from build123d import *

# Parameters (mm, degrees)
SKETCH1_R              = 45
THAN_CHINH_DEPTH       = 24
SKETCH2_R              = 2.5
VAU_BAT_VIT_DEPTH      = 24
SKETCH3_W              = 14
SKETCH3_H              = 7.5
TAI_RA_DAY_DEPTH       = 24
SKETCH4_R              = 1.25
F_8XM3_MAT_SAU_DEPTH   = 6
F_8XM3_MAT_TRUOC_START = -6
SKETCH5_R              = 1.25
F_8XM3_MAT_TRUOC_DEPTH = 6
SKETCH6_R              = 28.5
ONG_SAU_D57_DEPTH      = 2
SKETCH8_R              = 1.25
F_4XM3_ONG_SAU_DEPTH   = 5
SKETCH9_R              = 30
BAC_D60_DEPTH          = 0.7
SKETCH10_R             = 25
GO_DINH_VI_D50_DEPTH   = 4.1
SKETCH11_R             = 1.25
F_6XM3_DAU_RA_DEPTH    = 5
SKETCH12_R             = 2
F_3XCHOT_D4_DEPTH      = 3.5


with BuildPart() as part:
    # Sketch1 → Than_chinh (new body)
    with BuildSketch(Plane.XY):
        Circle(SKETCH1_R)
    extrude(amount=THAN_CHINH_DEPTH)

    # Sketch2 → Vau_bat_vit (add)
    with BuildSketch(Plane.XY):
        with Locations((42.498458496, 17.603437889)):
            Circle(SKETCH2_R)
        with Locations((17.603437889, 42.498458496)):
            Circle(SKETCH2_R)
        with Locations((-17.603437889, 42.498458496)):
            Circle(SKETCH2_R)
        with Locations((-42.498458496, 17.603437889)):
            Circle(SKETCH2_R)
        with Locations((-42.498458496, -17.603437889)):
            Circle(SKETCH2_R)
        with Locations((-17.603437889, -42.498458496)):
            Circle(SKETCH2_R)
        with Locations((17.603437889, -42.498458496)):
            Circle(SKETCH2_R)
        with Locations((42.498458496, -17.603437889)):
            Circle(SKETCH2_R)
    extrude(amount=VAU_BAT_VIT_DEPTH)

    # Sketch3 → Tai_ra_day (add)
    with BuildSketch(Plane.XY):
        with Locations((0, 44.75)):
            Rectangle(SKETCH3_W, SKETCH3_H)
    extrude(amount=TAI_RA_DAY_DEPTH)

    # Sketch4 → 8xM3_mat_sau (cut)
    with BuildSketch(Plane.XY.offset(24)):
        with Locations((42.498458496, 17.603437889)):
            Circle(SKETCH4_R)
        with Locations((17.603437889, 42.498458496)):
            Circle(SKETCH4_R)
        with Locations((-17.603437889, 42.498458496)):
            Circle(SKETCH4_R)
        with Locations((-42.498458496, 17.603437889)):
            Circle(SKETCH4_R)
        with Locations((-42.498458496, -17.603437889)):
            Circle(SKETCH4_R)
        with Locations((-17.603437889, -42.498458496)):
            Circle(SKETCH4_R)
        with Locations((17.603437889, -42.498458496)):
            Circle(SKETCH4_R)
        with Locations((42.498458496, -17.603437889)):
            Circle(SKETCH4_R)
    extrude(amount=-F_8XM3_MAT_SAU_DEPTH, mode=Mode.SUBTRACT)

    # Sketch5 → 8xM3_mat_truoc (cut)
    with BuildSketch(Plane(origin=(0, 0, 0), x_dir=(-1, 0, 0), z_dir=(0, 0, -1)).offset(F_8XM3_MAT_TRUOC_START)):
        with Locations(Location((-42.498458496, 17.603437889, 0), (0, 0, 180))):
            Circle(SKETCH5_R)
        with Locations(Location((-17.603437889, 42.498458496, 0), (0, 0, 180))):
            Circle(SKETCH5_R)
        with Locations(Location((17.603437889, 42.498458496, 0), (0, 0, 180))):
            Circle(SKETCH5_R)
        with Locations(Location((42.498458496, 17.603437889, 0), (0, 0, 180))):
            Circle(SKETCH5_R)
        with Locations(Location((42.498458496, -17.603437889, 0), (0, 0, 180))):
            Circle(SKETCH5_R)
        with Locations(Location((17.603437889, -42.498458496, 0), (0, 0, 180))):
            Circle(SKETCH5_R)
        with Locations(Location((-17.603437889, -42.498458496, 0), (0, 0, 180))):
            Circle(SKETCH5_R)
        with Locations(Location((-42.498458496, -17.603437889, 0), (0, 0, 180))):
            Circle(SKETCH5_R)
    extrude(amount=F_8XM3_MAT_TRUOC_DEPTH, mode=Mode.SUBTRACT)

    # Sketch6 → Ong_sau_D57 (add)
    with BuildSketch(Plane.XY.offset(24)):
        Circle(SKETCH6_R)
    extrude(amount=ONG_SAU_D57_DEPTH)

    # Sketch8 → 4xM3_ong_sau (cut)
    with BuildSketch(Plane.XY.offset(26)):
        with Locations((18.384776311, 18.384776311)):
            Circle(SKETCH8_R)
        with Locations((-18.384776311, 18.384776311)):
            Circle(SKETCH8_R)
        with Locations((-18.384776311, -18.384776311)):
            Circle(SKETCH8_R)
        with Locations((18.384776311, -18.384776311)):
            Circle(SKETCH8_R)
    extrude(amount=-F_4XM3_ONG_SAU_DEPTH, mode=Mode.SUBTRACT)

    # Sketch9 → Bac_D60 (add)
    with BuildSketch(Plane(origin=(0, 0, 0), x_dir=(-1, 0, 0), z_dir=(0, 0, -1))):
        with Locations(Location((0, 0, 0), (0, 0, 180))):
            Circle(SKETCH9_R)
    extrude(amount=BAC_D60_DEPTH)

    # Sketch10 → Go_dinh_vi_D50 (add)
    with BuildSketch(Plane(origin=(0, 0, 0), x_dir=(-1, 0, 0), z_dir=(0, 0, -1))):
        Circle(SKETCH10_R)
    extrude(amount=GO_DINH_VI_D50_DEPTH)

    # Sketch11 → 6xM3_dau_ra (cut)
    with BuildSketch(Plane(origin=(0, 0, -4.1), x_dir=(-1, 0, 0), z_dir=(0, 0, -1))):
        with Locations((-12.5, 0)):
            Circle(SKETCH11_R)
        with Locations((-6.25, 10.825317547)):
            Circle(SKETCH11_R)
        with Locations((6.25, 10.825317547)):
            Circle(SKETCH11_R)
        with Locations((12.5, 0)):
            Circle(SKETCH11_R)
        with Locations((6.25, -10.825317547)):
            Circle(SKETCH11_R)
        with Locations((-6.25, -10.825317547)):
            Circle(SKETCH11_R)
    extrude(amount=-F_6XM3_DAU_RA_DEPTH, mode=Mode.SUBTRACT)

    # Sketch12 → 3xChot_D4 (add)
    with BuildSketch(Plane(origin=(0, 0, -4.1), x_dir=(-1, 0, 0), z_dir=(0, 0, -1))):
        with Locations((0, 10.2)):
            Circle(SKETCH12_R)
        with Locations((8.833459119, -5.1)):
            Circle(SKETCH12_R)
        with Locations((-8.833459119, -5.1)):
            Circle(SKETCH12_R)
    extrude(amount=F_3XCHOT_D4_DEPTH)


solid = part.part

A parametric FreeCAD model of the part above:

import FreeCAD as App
import Part
import Sketcher
from FreeCAD import Vector


def add_polygon(sketch, points):
    """Adds a closed chain of lines whose ends are joined by coincident constraints."""
    first, n = sketch.GeometryCount, len(points)
    for a, b in zip(points, points[1:] + points[:1]):
        sketch.addGeometry(Part.LineSegment(App.Vector(*a, 0), App.Vector(*b, 0)), False)
    for i in range(n):
        sketch.addConstraint(Sketcher.Constraint("Coincident", first + i, 2, first + (i + 1) % n, 1))

doc = App.newDocument("Part")
body = doc.addObject("PartDesign::Body", "Body")

# Sketch on XY plane
sketch1 = doc.addObject("Sketcher::SketchObject", "Sketch")
body.addObject(sketch1)
sketch1.AttachmentSupport = (doc.XY_Plane, [""])
sketch1.MapMode = "FlatFace"
sketch1.addGeometry(Part.Circle(Vector(0, 0, 0), Vector(0, 0, 1), 45), False)
sketch1.addConstraint(Sketcher.Constraint("Coincident", 0, 3, -1, 1))
sketch1.addConstraint(Sketcher.Constraint("Diameter", 0, 90.0))
pad1 = doc.addObject("PartDesign::Pad", "Pad")
body.addObject(pad1)
pad1.Profile = sketch1
pad1.Length = 24

# Sketch on XY plane
sketch2 = doc.addObject("Sketcher::SketchObject", "Sketch001")
body.addObject(sketch2)
sketch2.AttachmentSupport = (doc.XY_Plane, [""])
sketch2.MapMode = "FlatFace"
sketch2.addGeometry(Part.Circle(Vector(42.5, 17.6, 0), Vector(0, 0, 1), 2.5), False)
sketch2.addGeometry(Part.Circle(Vector(17.6, 42.5, 0), Vector(0, 0, 1), 2.5), False)
sketch2.addGeometry(Part.Circle(Vector(-17.6, 42.5, 0), Vector(0, 0, 1), 2.5), False)
sketch2.addGeometry(Part.Circle(Vector(-42.5, 17.6, 0), Vector(0, 0, 1), 2.5), False)
sketch2.addGeometry(Part.Circle(Vector(-42.5, -17.6, 0), Vector(0, 0, 1), 2.5), False)
sketch2.addGeometry(Part.Circle(Vector(-17.6, -42.5, 0), Vector(0, 0, 1), 2.5), False)
sketch2.addGeometry(Part.Circle(Vector(17.6, -42.5, 0), Vector(0, 0, 1), 2.5), False)
sketch2.addGeometry(Part.Circle(Vector(42.5, -17.6, 0), Vector(0, 0, 1), 2.5), False)
sketch2.addConstraint(Sketcher.Constraint("Equal", 0, 1))
sketch2.addConstraint(Sketcher.Constraint("Equal", 1, 2))
sketch2.addConstraint(Sketcher.Constraint("Equal", 2, 3))
sketch2.addConstraint(Sketcher.Constraint("Equal", 3, 4))
sketch2.addConstraint(Sketcher.Constraint("Equal", 4, 5))
sketch2.addConstraint(Sketcher.Constraint("Equal", 5, 6))
sketch2.addConstraint(Sketcher.Constraint("Equal", 6, 7))
sketch2.addConstraint(Sketcher.Constraint("Symmetric", 0, 3, 4, 3, -1, 1))
sketch2.addConstraint(Sketcher.Constraint("Symmetric", 1, 3, 5, 3, -1, 1))
sketch2.addConstraint(Sketcher.Constraint("Symmetric", 2, 3, 6, 3, -1, 1))
sketch2.addConstraint(Sketcher.Constraint("Symmetric", 3, 3, 7, 3, -1, 1))
sketch2.addConstraint(Sketcher.Constraint("Symmetric", 1, 3, 2, 3, -2))
sketch2.addConstraint(Sketcher.Constraint("Symmetric", 0, 3, 3, 3, -2))
sketch2.addConstraint(Sketcher.Constraint("Diameter", 0, 5.0))
sketch2.addConstraint(Sketcher.Constraint("DistanceX", -1, 1, 0, 3, 42.498458))
sketch2.addConstraint(Sketcher.Constraint("DistanceY", -1, 1, 1, 3, 42.498458))
sketch2.addConstraint(Sketcher.Constraint("DistanceX", 1, 3, 0, 3, 24.895021))
sketch2.addConstraint(Sketcher.Constraint("DistanceY", 0, 3, 1, 3, 24.895021))
pad2 = doc.addObject("PartDesign::Pad", "Pad001")
body.addObject(pad2)
pad2.Profile = sketch2
pad2.Length = 24

# Sketch on XY plane
sketch3 = doc.addObject("Sketcher::SketchObject", "Sketch002")
body.addObject(sketch3)
sketch3.AttachmentSupport = (doc.XY_Plane, [""])
sketch3.MapMode = "FlatFace"
add_polygon(sketch3, [(-7, 48), (-7, 41), (7, 41), (7, 48)])  # lines 0-3
sketch3.addConstraint(Sketcher.Constraint("Vertical", 0))
sketch3.addConstraint(Sketcher.Constraint("Horizontal", 1))
sketch3.addConstraint(Sketcher.Constraint("Vertical", 2))
sketch3.addConstraint(Sketcher.Constraint("Horizontal", 3))
sketch3.addConstraint(Sketcher.Constraint("DistanceX", 1, 1, 1, 2, 14.0))
sketch3.addConstraint(Sketcher.Constraint("DistanceY", 0, 2, 0, 1, 7.5))
sketch3.addConstraint(Sketcher.Constraint("DistanceX", 0, 2, -1, 1, 7.0))
sketch3.addConstraint(Sketcher.Constraint("DistanceY", -1, 1, 0, 2, 41.0))
pad3 = doc.addObject("PartDesign::Pad", "Pad002")
body.addObject(pad3)
pad3.Profile = sketch3
pad3.Length = 24

# Sketch on XY plane
sketch4 = doc.addObject("Sketcher::SketchObject", "Sketch003")
body.addObject(sketch4)
sketch4.AttachmentSupport = (doc.XY_Plane, [""])
sketch4.MapMode = "FlatFace"
sketch4.AttachmentOffset = App.Placement(Vector(0, 0, 24), App.Rotation())
sketch4.addGeometry(Part.Circle(Vector(42.5, 17.6, 0), Vector(0, 0, 1), 1.2), False)
sketch4.addGeometry(Part.Circle(Vector(17.6, 42.5, 0), Vector(0, 0, 1), 1.2), False)
sketch4.addGeometry(Part.Circle(Vector(-17.6, 42.5, 0), Vector(0, 0, 1), 1.2), False)
sketch4.addGeometry(Part.Circle(Vector(-42.5, 17.6, 0), Vector(0, 0, 1), 1.2), False)
sketch4.addGeometry(Part.Circle(Vector(-42.5, -17.6, 0), Vector(0, 0, 1), 1.2), False)
sketch4.addGeometry(Part.Circle(Vector(-17.6, -42.5, 0), Vector(0, 0, 1), 1.2), False)
sketch4.addGeometry(Part.Circle(Vector(17.6, -42.5, 0), Vector(0, 0, 1), 1.2), False)
sketch4.addGeometry(Part.Circle(Vector(42.5, -17.6, 0), Vector(0, 0, 1), 1.2), False)
sketch4.addConstraint(Sketcher.Constraint("Equal", 0, 1))
sketch4.addConstraint(Sketcher.Constraint("Equal", 1, 2))
sketch4.addConstraint(Sketcher.Constraint("Equal", 2, 3))
sketch4.addConstraint(Sketcher.Constraint("Equal", 3, 4))
sketch4.addConstraint(Sketcher.Constraint("Equal", 4, 5))
sketch4.addConstraint(Sketcher.Constraint("Equal", 5, 6))
sketch4.addConstraint(Sketcher.Constraint("Equal", 6, 7))
sketch4.addConstraint(Sketcher.Constraint("Symmetric", 0, 3, 4, 3, -1, 1))
sketch4.addConstraint(Sketcher.Constraint("Symmetric", 1, 3, 5, 3, -1, 1))
sketch4.addConstraint(Sketcher.Constraint("Symmetric", 2, 3, 6, 3, -1, 1))
sketch4.addConstraint(Sketcher.Constraint("Symmetric", 3, 3, 7, 3, -1, 1))
sketch4.addConstraint(Sketcher.Constraint("Symmetric", 1, 3, 2, 3, -2))
sketch4.addConstraint(Sketcher.Constraint("Symmetric", 0, 3, 3, 3, -2))
sketch4.addConstraint(Sketcher.Constraint("Diameter", 0, 2.5))
sketch4.addConstraint(Sketcher.Constraint("DistanceX", -1, 1, 0, 3, 42.498458))
sketch4.addConstraint(Sketcher.Constraint("DistanceY", -1, 1, 1, 3, 42.498458))
sketch4.addConstraint(Sketcher.Constraint("DistanceX", 1, 3, 0, 3, 24.895021))
sketch4.addConstraint(Sketcher.Constraint("DistanceY", 0, 3, 1, 3, 24.895021))
pocket1 = doc.addObject("PartDesign::Pocket", "Pocket")
body.addObject(pocket1)
pocket1.Profile = sketch4
pocket1.Length = 6

# Sketch on XY plane
sketch5 = doc.addObject("Sketcher::SketchObject", "Sketch004")
body.addObject(sketch5)
sketch5.AttachmentSupport = (doc.XY_Plane, [""])
sketch5.MapMode = "FlatFace"
sketch5.AttachmentOffset = App.Placement(Vector(0, 0, 6), App.Rotation())
sketch5.addGeometry(Part.Circle(Vector(42.5, 17.6, 0), Vector(0, 0, 1), 1.2), False)
sketch5.addGeometry(Part.Circle(Vector(17.6, 42.5, 0), Vector(0, 0, 1), 1.2), False)
sketch5.addGeometry(Part.Circle(Vector(-17.6, 42.5, 0), Vector(0, 0, 1), 1.2), False)
sketch5.addGeometry(Part.Circle(Vector(-42.5, 17.6, 0), Vector(0, 0, 1), 1.2), False)
sketch5.addGeometry(Part.Circle(Vector(-42.5, -17.6, 0), Vector(0, 0, 1), 1.2), False)
sketch5.addGeometry(Part.Circle(Vector(-17.6, -42.5, 0), Vector(0, 0, 1), 1.2), False)
sketch5.addGeometry(Part.Circle(Vector(17.6, -42.5, 0), Vector(0, 0, 1), 1.2), False)
sketch5.addGeometry(Part.Circle(Vector(42.5, -17.6, 0), Vector(0, 0, 1), 1.2), False)
sketch5.addConstraint(Sketcher.Constraint("Equal", 0, 1))
sketch5.addConstraint(Sketcher.Constraint("Equal", 1, 2))
sketch5.addConstraint(Sketcher.Constraint("Equal", 2, 3))
sketch5.addConstraint(Sketcher.Constraint("Equal", 3, 4))
sketch5.addConstraint(Sketcher.Constraint("Equal", 4, 5))
sketch5.addConstraint(Sketcher.Constraint("Equal", 5, 6))
sketch5.addConstraint(Sketcher.Constraint("Equal", 6, 7))
sketch5.addConstraint(Sketcher.Constraint("Symmetric", 0, 3, 4, 3, -1, 1))
sketch5.addConstraint(Sketcher.Constraint("Symmetric", 1, 3, 5, 3, -1, 1))
sketch5.addConstraint(Sketcher.Constraint("Symmetric", 2, 3, 6, 3, -1, 1))
sketch5.addConstraint(Sketcher.Constraint("Symmetric", 3, 3, 7, 3, -1, 1))
sketch5.addConstraint(Sketcher.Constraint("Symmetric", 1, 3, 2, 3, -2))
sketch5.addConstraint(Sketcher.Constraint("Symmetric", 0, 3, 3, 3, -2))
sketch5.addConstraint(Sketcher.Constraint("Diameter", 0, 2.5))
sketch5.addConstraint(Sketcher.Constraint("DistanceX", -1, 1, 0, 3, 42.498458))
sketch5.addConstraint(Sketcher.Constraint("DistanceY", -1, 1, 1, 3, 42.498458))
sketch5.addConstraint(Sketcher.Constraint("DistanceX", 1, 3, 0, 3, 24.895021))
sketch5.addConstraint(Sketcher.Constraint("DistanceY", 0, 3, 1, 3, 24.895021))
pocket2 = doc.addObject("PartDesign::Pocket", "Pocket001")
body.addObject(pocket2)
pocket2.Profile = sketch5
pocket2.Length = 6

# Sketch on XY plane
sketch6 = doc.addObject("Sketcher::SketchObject", "Sketch005")
body.addObject(sketch6)
sketch6.AttachmentSupport = (doc.XY_Plane, [""])
sketch6.MapMode = "FlatFace"
sketch6.AttachmentOffset = App.Placement(Vector(0, 0, 24), App.Rotation())
sketch6.addGeometry(Part.Circle(Vector(0, 0, 0), Vector(0, 0, 1), 28), False)
sketch6.addConstraint(Sketcher.Constraint("Coincident", 0, 3, -1, 1))
sketch6.addConstraint(Sketcher.Constraint("Diameter", 0, 57.0))
pad4 = doc.addObject("PartDesign::Pad", "Pad003")
body.addObject(pad4)
pad4.Profile = sketch6
pad4.Length = 2

# Sketch on XY plane
sketch7 = doc.addObject("Sketcher::SketchObject", "Sketch006")
body.addObject(sketch7)
sketch7.AttachmentSupport = (doc.XY_Plane, [""])
sketch7.MapMode = "FlatFace"
sketch7.AttachmentOffset = App.Placement(Vector(0, 0, 26), App.Rotation())
sketch7.addGeometry(Part.Circle(Vector(18.4, 18.4, 0), Vector(0, 0, 1), 1.2), False)
sketch7.addGeometry(Part.Circle(Vector(-18.4, 18.4, 0), Vector(0, 0, 1), 1.2), False)
sketch7.addGeometry(Part.Circle(Vector(-18.4, -18.4, 0), Vector(0, 0, 1), 1.2), False)
sketch7.addGeometry(Part.Circle(Vector(18.4, -18.4, 0), Vector(0, 0, 1), 1.2), False)
sketch7.addConstraint(Sketcher.Constraint("Equal", 0, 1))
sketch7.addConstraint(Sketcher.Constraint("Equal", 1, 2))
sketch7.addConstraint(Sketcher.Constraint("Equal", 2, 3))
sketch7.addConstraint(Sketcher.Constraint("Symmetric", 0, 3, 2, 3, -1, 1))
sketch7.addConstraint(Sketcher.Constraint("Symmetric", 1, 3, 3, 3, -1, 1))
sketch7.addConstraint(Sketcher.Constraint("Symmetric", 0, 3, 1, 3, -2))
sketch7.addConstraint(Sketcher.Constraint("Diameter", 0, 2.5))
sketch7.addConstraint(Sketcher.Constraint("DistanceX", -1, 1, 0, 3, 18.384776))
sketch7.addConstraint(Sketcher.Constraint("DistanceY", -1, 1, 0, 3, 18.384776))
pocket3 = doc.addObject("PartDesign::Pocket", "Pocket002")
body.addObject(pocket3)
pocket3.Profile = sketch7
pocket3.Length = 5

# Sketch on XY plane
sketch8 = doc.addObject("Sketcher::SketchObject", "Sketch007")
body.addObject(sketch8)
sketch8.AttachmentSupport = (doc.XY_Plane, [""])
sketch8.MapMode = "FlatFace"
sketch8.addGeometry(Part.Circle(Vector(0, 0, 0), Vector(0, 0, 1), 30), False)
sketch8.addConstraint(Sketcher.Constraint("Coincident", 0, 3, -1, 1))
sketch8.addConstraint(Sketcher.Constraint("Diameter", 0, 60.0))
pad5 = doc.addObject("PartDesign::Pad", "Pad004")
body.addObject(pad5)
pad5.Profile = sketch8
pad5.Length = 0.7
pad5.Reversed = True

# Sketch on XY plane
sketch9 = doc.addObject("Sketcher::SketchObject", "Sketch008")
body.addObject(sketch9)
sketch9.AttachmentSupport = (doc.XY_Plane, [""])
sketch9.MapMode = "FlatFace"
sketch9.addGeometry(Part.Circle(Vector(0, 0, 0), Vector(0, 0, 1), 25), False)
sketch9.addConstraint(Sketcher.Constraint("Coincident", 0, 3, -1, 1))
sketch9.addConstraint(Sketcher.Constraint("Diameter", 0, 50.0))
pad6 = doc.addObject("PartDesign::Pad", "Pad005")
body.addObject(pad6)
pad6.Profile = sketch9
pad6.Length = 4.1
pad6.Reversed = True

# Sketch on XY plane
sketch10 = doc.addObject("Sketcher::SketchObject", "Sketch009")
body.addObject(sketch10)
sketch10.AttachmentSupport = (doc.XY_Plane, [""])
sketch10.MapMode = "FlatFace"
sketch10.AttachmentOffset = App.Placement(Vector(0, 0, -4.1), App.Rotation())
sketch10.addGeometry(Part.Circle(Vector(12.5, 0, 0), Vector(0, 0, 1), 1.2), False)
sketch10.addGeometry(Part.Circle(Vector(6.2, 10.8, 0), Vector(0, 0, 1), 1.2), False)
sketch10.addGeometry(Part.Circle(Vector(-6.2, 10.8, 0), Vector(0, 0, 1), 1.2), False)
sketch10.addGeometry(Part.Circle(Vector(-12.5, 0, 0), Vector(0, 0, 1), 1.2), False)
sketch10.addGeometry(Part.Circle(Vector(-6.2, -10.8, 0), Vector(0, 0, 1), 1.2), False)
sketch10.addGeometry(Part.Circle(Vector(6.2, -10.8, 0), Vector(0, 0, 1), 1.2), False)
sketch10.addConstraint(Sketcher.Constraint("Equal", 0, 1))
sketch10.addConstraint(Sketcher.Constraint("Equal", 1, 2))
sketch10.addConstraint(Sketcher.Constraint("Equal", 2, 3))
sketch10.addConstraint(Sketcher.Constraint("Equal", 3, 4))
sketch10.addConstraint(Sketcher.Constraint("Equal", 4, 5))
sketch10.addConstraint(Sketcher.Constraint("Symmetric", 0, 3, 3, 3, -1, 1))
sketch10.addConstraint(Sketcher.Constraint("Symmetric", 1, 3, 4, 3, -1, 1))
sketch10.addConstraint(Sketcher.Constraint("Symmetric", 2, 3, 5, 3, -1, 1))
sketch10.addConstraint(Sketcher.Constraint("Symmetric", 1, 3, 2, 3, -2))
sketch10.addConstraint(Sketcher.Constraint("PointOnObject", 0, 3, -1))
sketch10.addConstraint(Sketcher.Constraint("Diameter", 0, 2.5))
sketch10.addConstraint(Sketcher.Constraint("DistanceX", 3, 3, 0, 3, 25.0))
sketch10.addConstraint(Sketcher.Constraint("DistanceX", 2, 3, 1, 3, 12.5))
sketch10.addConstraint(Sketcher.Constraint("DistanceY", -1, 1, 1, 3, 10.825318))
pocket4 = doc.addObject("PartDesign::Pocket", "Pocket003")
body.addObject(pocket4)
pocket4.Profile = sketch10
pocket4.Length = 5
pocket4.Reversed = True

# Sketch on XY plane
sketch11 = doc.addObject("Sketcher::SketchObject", "Sketch010")
body.addObject(sketch11)
sketch11.AttachmentSupport = (doc.XY_Plane, [""])
sketch11.MapMode = "FlatFace"
sketch11.AttachmentOffset = App.Placement(Vector(0, 0, -4.1), App.Rotation())
sketch11.addGeometry(Part.Circle(Vector(0, 10.2, 0), Vector(0, 0, 1), 2), False)
sketch11.addGeometry(Part.Circle(Vector(-8.8, -5.1, 0), Vector(0, 0, 1), 2), False)
sketch11.addGeometry(Part.Circle(Vector(8.8, -5.1, 0), Vector(0, 0, 1), 2), False)
sketch11.addConstraint(Sketcher.Constraint("Equal", 0, 1))
sketch11.addConstraint(Sketcher.Constraint("Equal", 1, 2))
sketch11.addConstraint(Sketcher.Constraint("Symmetric", 1, 3, 2, 3, -2))
sketch11.addConstraint(Sketcher.Constraint("PointOnObject", 0, 3, -2))
sketch11.addConstraint(Sketcher.Constraint("Diameter", 0, 4.0))
sketch11.addConstraint(Sketcher.Constraint("DistanceY", -1, 1, 0, 3, 10.2))
sketch11.addConstraint(Sketcher.Constraint("DistanceY", 1, 3, -1, 1, 5.1))
sketch11.addConstraint(Sketcher.Constraint("DistanceX", 1, 3, -1, 1, 8.833459))
pad7 = doc.addObject("PartDesign::Pad", "Pad006")
body.addObject(pad7)
pad7.Profile = sketch11
pad7.Length = 3.5
pad7.Reversed = True

doc.recompute()
